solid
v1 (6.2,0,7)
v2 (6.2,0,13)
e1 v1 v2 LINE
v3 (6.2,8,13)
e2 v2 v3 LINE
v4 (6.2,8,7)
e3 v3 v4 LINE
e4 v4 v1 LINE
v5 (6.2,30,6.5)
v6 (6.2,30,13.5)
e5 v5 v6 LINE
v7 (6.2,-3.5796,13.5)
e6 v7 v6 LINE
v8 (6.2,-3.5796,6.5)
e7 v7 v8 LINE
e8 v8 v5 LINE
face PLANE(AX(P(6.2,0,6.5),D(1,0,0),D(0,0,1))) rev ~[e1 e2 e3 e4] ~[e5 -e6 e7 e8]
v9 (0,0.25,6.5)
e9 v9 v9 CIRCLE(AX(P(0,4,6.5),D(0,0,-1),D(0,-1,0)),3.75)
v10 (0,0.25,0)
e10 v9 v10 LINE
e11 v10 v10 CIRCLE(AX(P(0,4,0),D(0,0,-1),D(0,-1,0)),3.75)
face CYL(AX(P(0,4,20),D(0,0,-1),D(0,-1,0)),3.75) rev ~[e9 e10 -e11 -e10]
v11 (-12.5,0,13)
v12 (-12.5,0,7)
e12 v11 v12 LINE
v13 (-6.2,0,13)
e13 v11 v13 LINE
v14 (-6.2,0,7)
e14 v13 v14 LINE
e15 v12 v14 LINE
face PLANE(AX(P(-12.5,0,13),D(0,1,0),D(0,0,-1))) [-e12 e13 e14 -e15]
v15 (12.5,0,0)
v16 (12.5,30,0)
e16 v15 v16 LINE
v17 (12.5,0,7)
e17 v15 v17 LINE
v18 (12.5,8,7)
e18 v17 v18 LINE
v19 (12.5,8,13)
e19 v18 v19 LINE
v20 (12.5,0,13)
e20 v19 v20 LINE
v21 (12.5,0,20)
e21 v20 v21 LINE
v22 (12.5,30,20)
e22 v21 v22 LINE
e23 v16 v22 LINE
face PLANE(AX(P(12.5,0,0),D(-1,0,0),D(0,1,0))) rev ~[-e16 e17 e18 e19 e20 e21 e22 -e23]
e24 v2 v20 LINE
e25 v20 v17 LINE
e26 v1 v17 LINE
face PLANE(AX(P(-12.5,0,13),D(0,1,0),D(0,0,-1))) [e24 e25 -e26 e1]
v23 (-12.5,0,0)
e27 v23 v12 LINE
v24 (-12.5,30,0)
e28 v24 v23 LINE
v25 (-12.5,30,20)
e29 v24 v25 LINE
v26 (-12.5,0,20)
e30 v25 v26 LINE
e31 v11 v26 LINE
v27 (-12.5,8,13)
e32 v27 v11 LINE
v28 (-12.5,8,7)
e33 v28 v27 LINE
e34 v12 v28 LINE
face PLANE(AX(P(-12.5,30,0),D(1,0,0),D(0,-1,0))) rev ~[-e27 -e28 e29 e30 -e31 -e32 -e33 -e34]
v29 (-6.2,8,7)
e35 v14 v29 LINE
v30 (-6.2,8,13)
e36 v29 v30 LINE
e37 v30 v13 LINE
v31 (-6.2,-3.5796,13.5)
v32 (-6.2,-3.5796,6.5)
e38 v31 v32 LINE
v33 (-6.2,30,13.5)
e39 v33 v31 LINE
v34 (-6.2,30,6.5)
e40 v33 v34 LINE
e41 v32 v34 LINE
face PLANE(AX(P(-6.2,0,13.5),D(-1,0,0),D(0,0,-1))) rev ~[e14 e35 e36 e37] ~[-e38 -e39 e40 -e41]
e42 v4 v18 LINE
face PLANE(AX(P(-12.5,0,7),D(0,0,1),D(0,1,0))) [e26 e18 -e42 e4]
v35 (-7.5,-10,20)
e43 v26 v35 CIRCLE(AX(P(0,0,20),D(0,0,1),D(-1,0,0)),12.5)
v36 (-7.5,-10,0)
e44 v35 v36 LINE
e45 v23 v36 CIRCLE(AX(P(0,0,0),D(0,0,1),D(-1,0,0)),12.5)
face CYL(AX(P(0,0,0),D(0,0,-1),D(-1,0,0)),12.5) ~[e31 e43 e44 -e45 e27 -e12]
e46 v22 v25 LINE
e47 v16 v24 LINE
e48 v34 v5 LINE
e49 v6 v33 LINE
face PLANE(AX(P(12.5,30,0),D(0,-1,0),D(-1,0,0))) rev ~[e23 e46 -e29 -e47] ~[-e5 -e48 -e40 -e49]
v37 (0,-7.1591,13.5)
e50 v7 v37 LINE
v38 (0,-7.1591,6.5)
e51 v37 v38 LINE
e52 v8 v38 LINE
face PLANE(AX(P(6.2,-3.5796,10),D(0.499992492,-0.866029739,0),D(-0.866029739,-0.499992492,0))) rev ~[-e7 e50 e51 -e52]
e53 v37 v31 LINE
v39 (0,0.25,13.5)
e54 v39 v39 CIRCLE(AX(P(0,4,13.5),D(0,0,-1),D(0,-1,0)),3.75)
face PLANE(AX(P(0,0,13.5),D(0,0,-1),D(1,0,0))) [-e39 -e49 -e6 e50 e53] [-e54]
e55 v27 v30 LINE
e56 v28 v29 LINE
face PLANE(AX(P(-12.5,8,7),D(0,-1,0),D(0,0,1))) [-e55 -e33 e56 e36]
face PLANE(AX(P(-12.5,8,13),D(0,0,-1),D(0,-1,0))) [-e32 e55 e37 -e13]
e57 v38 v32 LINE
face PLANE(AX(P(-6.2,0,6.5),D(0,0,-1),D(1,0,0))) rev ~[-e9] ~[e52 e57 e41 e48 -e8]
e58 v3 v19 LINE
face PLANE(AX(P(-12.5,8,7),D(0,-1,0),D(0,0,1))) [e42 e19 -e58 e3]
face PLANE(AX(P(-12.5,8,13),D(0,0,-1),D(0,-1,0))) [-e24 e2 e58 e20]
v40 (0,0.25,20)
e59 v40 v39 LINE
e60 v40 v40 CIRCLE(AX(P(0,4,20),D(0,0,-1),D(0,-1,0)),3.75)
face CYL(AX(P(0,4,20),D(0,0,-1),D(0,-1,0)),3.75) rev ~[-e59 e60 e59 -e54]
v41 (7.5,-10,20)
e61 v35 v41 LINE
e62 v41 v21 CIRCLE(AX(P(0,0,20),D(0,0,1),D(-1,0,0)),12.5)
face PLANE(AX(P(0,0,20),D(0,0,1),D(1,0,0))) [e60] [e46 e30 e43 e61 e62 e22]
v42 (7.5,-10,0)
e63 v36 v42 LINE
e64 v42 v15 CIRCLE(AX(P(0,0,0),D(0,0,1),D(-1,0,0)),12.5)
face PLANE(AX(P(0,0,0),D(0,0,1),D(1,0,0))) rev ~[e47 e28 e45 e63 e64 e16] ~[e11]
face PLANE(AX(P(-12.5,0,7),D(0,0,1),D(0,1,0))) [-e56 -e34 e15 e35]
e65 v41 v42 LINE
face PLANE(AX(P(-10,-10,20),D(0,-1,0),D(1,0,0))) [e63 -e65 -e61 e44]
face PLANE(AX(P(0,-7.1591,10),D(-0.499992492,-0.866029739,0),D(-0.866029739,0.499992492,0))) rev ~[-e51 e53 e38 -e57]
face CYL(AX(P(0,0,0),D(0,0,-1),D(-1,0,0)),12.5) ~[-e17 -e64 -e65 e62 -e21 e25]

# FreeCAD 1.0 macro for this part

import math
import FreeCAD as App
import Part
import Sketcher
from FreeCAD import Vector
Q = App.Units.Quantity


def add_polygon(sketch, points):
    """Adds a closed chain of lines whose ends are joined by coincident constraints."""
    first, n = sketch.GeometryCount, len(points)
    for a, b in zip(points, points[1:] + points[:1]):
        sketch.addGeometry(Part.LineSegment(App.Vector(*a, 0), App.Vector(*b, 0)), False)
    for i in range(n):
        sketch.addConstraint(Sketcher.Constraint("Coincident", first + i, 2, first + (i + 1) % n, 1))

doc = App.newDocument("Part")
body = doc.addObject("PartDesign::Body", "Body")

sketch1 = body.newObject("Sketcher::SketchObject", "Sketch")
sketch1.AttachmentSupport = (doc.getObject("XY_Plane"), [""])
sketch1.MapMode = "FlatFace"
sketch1.addGeometry([
    Part.ArcOfCircle(Part.Circle(Vector(0, 0, 0), Vector(0, 0, 1), 12), math.radians(180), math.radians(360)),
    Part.LineSegment(Vector(12, 0, 0), Vector(12, 30, 0)),
    Part.LineSegment(Vector(12, 30, 0), Vector(-12, 30, 0)),
    Part.LineSegment(Vector(-12, 30, 0), Vector(-12, 0, 0)),
], False)
sketch1.addConstraint([
    Sketcher.Constraint("Tangent", 0, 2, 1, 1),
    Sketcher.Constraint("Coincident", 1, 2, 2, 1),
    Sketcher.Constraint("Coincident", 2, 2, 3, 1),
    Sketcher.Constraint("Tangent", 3, 2, 0, 1),
    Sketcher.Constraint("Vertical", 1),
    Sketcher.Constraint("Horizontal", 2),
    Sketcher.Constraint("Vertical", 3),
    Sketcher.Constraint("Coincident", 0, 3, -1, 1),
    Sketcher.Constraint("Radius", 0, 12.5),
    Sketcher.Constraint("DistanceY", 1, 1, 1, 2, 30.0),
])
pad1 = body.newObject("PartDesign::Pad", "Pad")
pad1.Profile = sketch1
pad1.Length = 20

sketch2 = body.newObject("Sketcher::SketchObject", "Sketch001")
sketch2.AttachmentSupport = (doc.getObject("XY_Plane"), [""])
sketch2.MapMode = "FlatFace"
sketch2.AttachmentOffset = App.Placement(Vector(0, 0, 10), App.Rotation())
add_polygon(sketch2, [(6, -4), (6, 4), (0, 7), (-6, 4), (-6, -4), (0, -7)])
sketch2.addConstraint([
    Sketcher.Constraint("Vertical", 0),
    Sketcher.Constraint("Vertical", 3),
    Sketcher.Constraint("Symmetric", 0, 2, 3, 2, -1, 1),
    Sketcher.Constraint("Symmetric", 1, 2, 4, 2, -1, 1),
    Sketcher.Constraint("PointOnObject", 1, 2, -2),
    Sketcher.Constraint("Parallel", 2, 5),
    Sketcher.Constraint("Horizontal", 0, 2, 2, 2),
    Sketcher.Constraint("DistanceX", 2, 2, 0, 2, 12.4),
    Sketcher.Constraint("Angle", 1, Q("150.0005 deg")),
    Sketcher.Constraint("DistanceY", 0, 1, 0, 2, 7.1592),
])
pocket1 = body.newObject("PartDesign::Pocket", "Pocket")
pocket1.Profile = sketch2
pocket1.Length = 7
pocket1.Midplane = True

sketch3 = body.newObject("Sketcher::SketchObject", "Sketch002")
sketch3.AttachmentSupport = (doc.getObject("XZ_Plane"), [""])
sketch3.MapMode = "FlatFace"
add_polygon(sketch3, [(-6, 6), (-6, 14), (6, 14), (6, 6)])
sketch3.addConstraint([
    Sketcher.Constraint("Vertical", 0),
    Sketcher.Constraint("Horizontal", 1),
    Sketcher.Constraint("Vertical", 2),
    Sketcher.Constraint("Horizontal", 3),
    Sketcher.Constraint("DistanceY", 0, 1, 0, 2, 7.0),
    Sketcher.Constraint("DistanceX", 1, 1, 1, 2, 12.4),
    Sketcher.Constraint("DistanceX", 0, 2, -1, 1, 6.2),
    Sketcher.Constraint("DistanceY", -1, 1, 0, 2, 13.5),
])
pocket2 = body.newObject("PartDesign::Pocket", "Pocket001")
pocket2.Profile = sketch3
pocket2.Length = 30

sketch4 = body.newObject("Sketcher::SketchObject", "Sketch003")
sketch4.AttachmentSupport = (doc.getObject("XY_Plane"), [""])
sketch4.MapMode = "FlatFace"
sketch4.AttachmentOffset = App.Placement(Vector(0, 0, 20), App.Rotation())
sketch4.addGeometry(Part.Circle(Vector(0, 4, 0), Vector(0, 0, 1), 3.8), False)
sketch4.addConstraint([
    Sketcher.Constraint("PointOnObject", 0, 3, -2),
    Sketcher.Constraint("Diameter", 0, 7.5),
    Sketcher.Constraint("DistanceY", -1, 1, 0, 3, 4.0),
])
doc.recompute()
hole = body.newObject("PartDesign::Hole", "Hole")
hole.Profile = sketch4
hole.ThreadType = "None"
hole.Diameter = 7.5
hole.DepthType = "ThroughAll"

sketch5 = body.newObject("Sketcher::SketchObject", "Sketch004")
sketch5.AttachmentSupport = (doc.getObject("YZ_Plane"), [""])
sketch5.MapMode = "FlatFace"
sketch5.AttachmentOffset = App.Placement(Vector(0, 0, -12.5), App.Rotation())
add_polygon(sketch5, [(8, 13), (8, 7), (0, 7), (0, 13)])
sketch5.addConstraint([
    Sketcher.Constraint("Vertical", 0),
    Sketcher.Constraint("Horizontal", 1),
    Sketcher.Constraint("Vertical", 2),
    Sketcher.Constraint("Horizontal", 3),
    Sketcher.Constraint("PointOnObject", 1, 2, -2),
    Sketcher.Constraint("DistanceX", 1, 2, 1, 1, 8.0),
    Sketcher.Constraint("DistanceY", 0, 2, 0, 1, 6.0),
    Sketcher.Constraint("DistanceY", -1, 1, 0, 2, 7.0),
])
pocket3 = body.newObject("PartDesign::Pocket", "Pocket002")
pocket3.Profile = sketch5
pocket3.Length = 25
pocket3.Reversed = True

sketch6 = body.newObject("Sketcher::SketchObject", "Sketch005")
sketch6.AttachmentSupport = (doc.getObject("XY_Plane"), [""])
sketch6.MapMode = "FlatFace"
sketch6.AttachmentOffset = App.Placement(Vector(0, 0, 20), App.Rotation())
add_polygon(sketch6, [(10, -10), (-10, -10), (-10, -15), (10, -15)])
sketch6.addConstraint([
    Sketcher.Constraint("Horizontal", 0),
    Sketcher.Constraint("Vertical", 1),
    Sketcher.Constraint("Horizontal", 2),
    Sketcher.Constraint("Vertical", 3),
    Sketcher.Constraint("DistanceX", 0, 2, 0, 1, 20.0),
    Sketcher.Constraint("DistanceY", 1, 2, 1, 1, 5.0),
    Sketcher.Constraint("DistanceX", 0, 2, -1, 1, 10.0),
    Sketcher.Constraint("DistanceY", 0, 2, -1, 1, 10.0),
])
pocket4 = body.newObject("PartDesign::Pocket", "Pocket003")
pocket4.Profile = sketch6
pocket4.Length = 20

doc.recompute()
